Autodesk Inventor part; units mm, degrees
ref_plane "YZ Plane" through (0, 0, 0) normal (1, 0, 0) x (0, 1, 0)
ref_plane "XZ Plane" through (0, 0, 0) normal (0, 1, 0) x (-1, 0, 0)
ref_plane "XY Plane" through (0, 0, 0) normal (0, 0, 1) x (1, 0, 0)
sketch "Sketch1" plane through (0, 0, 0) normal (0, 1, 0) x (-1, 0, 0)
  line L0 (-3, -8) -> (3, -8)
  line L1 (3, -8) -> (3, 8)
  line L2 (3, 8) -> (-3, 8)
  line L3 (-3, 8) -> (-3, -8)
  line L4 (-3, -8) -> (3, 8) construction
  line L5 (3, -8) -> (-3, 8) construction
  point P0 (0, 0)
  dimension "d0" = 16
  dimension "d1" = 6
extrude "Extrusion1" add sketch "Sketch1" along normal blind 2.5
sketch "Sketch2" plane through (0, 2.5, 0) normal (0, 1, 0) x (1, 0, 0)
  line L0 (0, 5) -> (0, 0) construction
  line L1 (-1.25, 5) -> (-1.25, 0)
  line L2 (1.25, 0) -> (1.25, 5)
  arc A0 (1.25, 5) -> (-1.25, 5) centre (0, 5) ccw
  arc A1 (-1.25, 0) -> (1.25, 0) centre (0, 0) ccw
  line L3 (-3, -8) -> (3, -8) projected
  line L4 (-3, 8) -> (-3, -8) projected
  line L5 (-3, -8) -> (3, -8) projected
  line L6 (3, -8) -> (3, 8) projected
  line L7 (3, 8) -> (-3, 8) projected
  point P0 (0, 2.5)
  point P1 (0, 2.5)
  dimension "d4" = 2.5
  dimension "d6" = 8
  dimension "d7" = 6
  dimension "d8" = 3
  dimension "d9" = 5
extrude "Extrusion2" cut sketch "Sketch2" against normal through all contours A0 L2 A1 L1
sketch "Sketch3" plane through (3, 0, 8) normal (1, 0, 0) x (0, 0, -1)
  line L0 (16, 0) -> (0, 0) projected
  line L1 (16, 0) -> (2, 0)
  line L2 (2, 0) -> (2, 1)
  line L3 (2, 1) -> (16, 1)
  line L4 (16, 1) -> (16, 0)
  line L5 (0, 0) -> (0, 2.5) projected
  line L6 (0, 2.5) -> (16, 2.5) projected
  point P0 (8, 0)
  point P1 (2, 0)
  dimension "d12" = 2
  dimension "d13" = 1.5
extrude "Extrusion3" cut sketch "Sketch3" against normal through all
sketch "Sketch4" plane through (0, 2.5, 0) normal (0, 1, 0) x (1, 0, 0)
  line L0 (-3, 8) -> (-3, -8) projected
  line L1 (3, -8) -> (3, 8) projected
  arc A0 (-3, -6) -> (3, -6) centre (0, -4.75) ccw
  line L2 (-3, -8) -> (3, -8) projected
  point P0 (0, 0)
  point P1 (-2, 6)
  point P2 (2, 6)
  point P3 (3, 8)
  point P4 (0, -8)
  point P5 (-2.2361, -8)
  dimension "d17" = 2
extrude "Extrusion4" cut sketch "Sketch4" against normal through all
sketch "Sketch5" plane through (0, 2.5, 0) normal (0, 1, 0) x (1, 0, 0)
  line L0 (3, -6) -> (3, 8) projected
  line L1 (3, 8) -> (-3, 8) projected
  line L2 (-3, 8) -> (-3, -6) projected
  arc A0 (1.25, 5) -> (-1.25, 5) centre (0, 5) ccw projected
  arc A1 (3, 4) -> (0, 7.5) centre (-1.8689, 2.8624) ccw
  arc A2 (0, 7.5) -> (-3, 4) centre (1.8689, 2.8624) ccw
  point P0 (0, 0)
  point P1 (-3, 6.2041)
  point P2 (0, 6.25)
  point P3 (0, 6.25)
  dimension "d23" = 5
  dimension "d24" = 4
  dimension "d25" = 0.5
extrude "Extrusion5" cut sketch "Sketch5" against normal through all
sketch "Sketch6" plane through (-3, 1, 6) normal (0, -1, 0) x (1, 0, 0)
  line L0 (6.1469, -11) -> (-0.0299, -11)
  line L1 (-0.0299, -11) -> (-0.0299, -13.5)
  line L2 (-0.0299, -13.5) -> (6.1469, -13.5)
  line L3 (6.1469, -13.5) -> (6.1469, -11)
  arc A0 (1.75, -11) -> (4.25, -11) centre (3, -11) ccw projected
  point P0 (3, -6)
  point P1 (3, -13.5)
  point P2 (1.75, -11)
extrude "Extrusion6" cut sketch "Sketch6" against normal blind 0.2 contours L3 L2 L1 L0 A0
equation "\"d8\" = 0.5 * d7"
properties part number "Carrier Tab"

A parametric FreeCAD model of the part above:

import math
import FreeCAD as App
import Part
import Sketcher


def add_polygon(sketch, points):
    """Adds a closed chain of lines whose ends are joined by coincident constraints."""
    first, n = sketch.GeometryCount, len(points)
    for a, b in zip(points, points[1:] + points[:1]):
        sketch.addGeometry(Part.LineSegment(App.Vector(*a, 0), App.Vector(*b, 0)), False)
    for i in range(n):
        sketch.addConstraint(Sketcher.Constraint("Coincident", first + i, 2, first + (i + 1) % n, 1))

doc = App.newDocument("Part")
body = doc.addObject("PartDesign::Body", "Body")

# Sketch on XZ plane
sketch1 = body.newObject("Sketcher::SketchObject", "Sketch")
sketch1.AttachmentSupport = (doc.getObject("XZ_Plane"), [""])
sketch1.MapMode = "FlatFace"
add_polygon(sketch1, [(3, 8), (3, -8), (-3, -8), (-3, 8)])  # lines 0-3
sketch1.addConstraint([
    Sketcher.Constraint("Vertical", 0),
    Sketcher.Constraint("Horizontal", 1),
    Sketcher.Constraint("Vertical", 2),
    Sketcher.Constraint("Horizontal", 3),
    Sketcher.Constraint("Symmetric", 0, 2, 2, 2, -1, 1),
    Sketcher.Constraint("DistanceX", 1, 2, 1, 1, 6.0),
    Sketcher.Constraint("DistanceY", 0, 2, 0, 1, 16.0),
])
pad1 = body.newObject("PartDesign::Pad", "Pad")
pad1.Profile = sketch1
pad1.Length = 2.5
pad1.Reversed = True

# Sketch on XZ plane
sketch2 = body.newObject("Sketcher::SketchObject", "Sketch001")
sketch2.AttachmentSupport = (doc.getObject("XZ_Plane"), [""])
sketch2.MapMode = "FlatFace"
sketch2.AttachmentOffset = App.Placement(App.Vector(0, 0, -2.5), App.Rotation())
sketch2.addGeometry([
    Part.ArcOfCircle(Part.Circle(App.Vector(0, -5, 0), App.Vector(0, 0, 1), 1.25), math.radians(180), math.radians(360)),
    Part.LineSegment(App.Vector(-1.25, -5, 0), App.Vector(-1.25, 0, 0)),
    Part.ArcOfCircle(Part.Circle(App.Vector(0, 0, 0), App.Vector(0, 0, 1), 1.25), math.radians(0), math.radians(180)),
    Part.LineSegment(App.Vector(1.25, 0, 0), App.Vector(1.25, -5, 0)),
], False)
sketch2.addConstraint([
    Sketcher.Constraint("Tangent", 0, 1, 1, 1),
    Sketcher.Constraint("Tangent", 1, 2, 2, 2),
    Sketcher.Constraint("Tangent", 2, 1, 3, 1),
    Sketcher.Constraint("Tangent", 3, 2, 0, 2),
    Sketcher.Constraint("Vertical", 1),
    Sketcher.Constraint("Vertical", 3),
    Sketcher.Constraint("Coincident", 2, 3, -1, 1),
    Sketcher.Constraint("DistanceY", 1, 1, 1, 2, 5.0),
    Sketcher.Constraint("Radius", 0, 1.25),
])
pocket1 = body.newObject("PartDesign::Pocket", "Pocket")
pocket1.Profile = sketch2
pocket1.Type = "ThroughAll"
pocket1.Reversed = True

# Sketch on YZ plane
sketch3 = body.newObject("Sketcher::SketchObject", "Sketch002")
sketch3.AttachmentSupport = (doc.getObject("YZ_Plane"), [""])
sketch3.MapMode = "FlatFace"
sketch3.AttachmentOffset = App.Placement(App.Vector(0, 0, 3), App.Rotation())
add_polygon(sketch3, [(0, 6), (0, -8), (1, -8), (1, 6)])  # lines 0-3
sketch3.addConstraint([
    Sketcher.Constraint("Vertical", 0),
    Sketcher.Constraint("Horizontal", 1),
    Sketcher.Constraint("Vertical", 2),
    Sketcher.Constraint("Horizontal", 3),
    Sketcher.Constraint("PointOnObject", 0, 2, -2),
    Sketcher.Constraint("DistanceX", 1, 1, 1, 2, 1.0),
    Sketcher.Constraint("DistanceY", 0, 2, 0, 1, 14.0),
    Sketcher.Constraint("DistanceY", 0, 2, -1, 1, 8.0),
])
pocket2 = body.newObject("PartDesign::Pocket", "Pocket001")
pocket2.Profile = sketch3
pocket2.Type = "ThroughAll"

# Sketch on XZ plane
sketch4 = body.newObject("Sketcher::SketchObject", "Sketch003")
sketch4.AttachmentSupport = (doc.getObject("XZ_Plane"), [""])
sketch4.MapMode = "FlatFace"
sketch4.AttachmentOffset = App.Placement(App.Vector(0, 0, -2.5), App.Rotation())
sketch4.addGeometry([
    Part.ArcOfCircle(Part.Circle(App.Vector(0, 4.75, 0), App.Vector(0, 0, 1), 3.25), math.radians(90), math.radians(157.380135)),  # 0
    Part.LineSegment(App.Vector(-3, 6, 0), App.Vector(-3, 8, 0)),  # 1
    Part.LineSegment(App.Vector(-3, 8, 0), App.Vector(0, 8, 0)),  # 2
    Part.ArcOfCircle(Part.Circle(App.Vector(0, 4.75, 0), App.Vector(0, 0, 1), 3.25), math.radians(22.619865), math.radians(90)),  # 3
    Part.LineSegment(App.Vector(0, 8, 0), App.Vector(3, 8, 0)),  # 4
    Part.LineSegment(App.Vector(3, 8, 0), App.Vector(3, 6, 0)),  # 5
], False)
sketch4.addConstraint([
    Sketcher.Constraint("Coincident", 0, 2, 1, 1),
    Sketcher.Constraint("Coincident", 1, 2, 2, 1),
    Sketcher.Constraint("Tangent", 2, 2, 0, 1),
    Sketcher.Constraint("Tangent", 3, 2, 4, 1),
    Sketcher.Constraint("Coincident", 4, 2, 5, 1),
    Sketcher.Constraint("Coincident", 5, 2, 3, 1),
    Sketcher.Constraint("Vertical", 1),
    Sketcher.Constraint("Horizontal", 2),
    Sketcher.Constraint("Horizontal", 4),
    Sketcher.Constraint("Vertical", 5),
    Sketcher.Constraint("Coincident", 3, 3, 0, 3),
    Sketcher.Constraint("Equal", 0, 3),
    Sketcher.Constraint("Symmetric", 0, 2, 5, 2, -2),
    Sketcher.Constraint("DistanceY", 1, 1, 1, 2, 2.0),
    Sketcher.Constraint("DistanceX", 2, 1, 2, 2, 3.0),
    Sketcher.Constraint("DistanceY", -1, 1, 0, 2, 6.0),
])
pocket3 = body.newObject("PartDesign::Pocket", "Pocket002")
pocket3.Profile = sketch4
pocket3.Type = "ThroughAll"
pocket3.Reversed = True

# Sketch on XZ plane
sketch5 = body.newObject("Sketcher::SketchObject", "Sketch004")
sketch5.AttachmentSupport = (doc.getObject("XZ_Plane"), [""])
sketch5.MapMode = "FlatFace"
sketch5.AttachmentOffset = App.Placement(App.Vector(0, 0, -2.5), App.Rotation())
sketch5.addGeometry([
    Part.ArcOfCircle(Part.Circle(App.Vector(-1.8689, -2.8624, 0), App.Vector(0, 0, 1), 5.000032), math.radians(-68.051126), math.radians(-13.151022)),  # 0
    Part.LineSegment(App.Vector(3, -4, 0), App.Vector(3, -8, 0)),  # 1
    Part.LineSegment(App.Vector(3, -8, 0), App.Vector(-3, -8, 0)),  # 2
    Part.LineSegment(App.Vector(-3, -8, 0), App.Vector(-3, -4, 0)),  # 3
    Part.ArcOfCircle(Part.Circle(App.Vector(1.8689, -2.8624, 0), App.Vector(0, 0, 1), 5.000012), math.radians(-166.848978), math.radians(-111.948874)),  # 4
], False)
sketch5.addConstraint([
    Sketcher.Constraint("Coincident", 0, 2, 1, 1),
    Sketcher.Constraint("Coincident", 1, 2, 2, 1),
    Sketcher.Constraint("Coincident", 2, 2, 3, 1),
    Sketcher.Constraint("Coincident", 3, 2, 4, 1),
    Sketcher.Constraint("Coincident", 4, 2, 0, 1),
    Sketcher.Constraint("Vertical", 1),
    Sketcher.Constraint("Horizontal", 2),
    Sketcher.Constraint("Vertical", 3),
    Sketcher.Constraint("Equal", 0, 4),
    Sketcher.Constraint("Symmetric", 0, 3, 4, 3, -2),
    Sketcher.Constraint("Horizontal", 0, 2, 3, 2),
    Sketcher.Constraint("Radius", 0, 5.0),
    Sketcher.Constraint("DistanceY", 1, 2, 1, 1, 4.0),
    Sketcher.Constraint("DistanceY", 0, 2, -1, 1, 4.0),
    Sketcher.Constraint("DistanceY", 2, 2, 4, 2, 0.5),
    Sketcher.Constraint("DistanceX", 2, 2, 2, 1, 6.0),
])
pocket4 = body.newObject("PartDesign::Pocket", "Pocket003")
pocket4.Profile = sketch5
pocket4.Type = "ThroughAll"
pocket4.Reversed = True

# Sketch on XZ plane
sketch6 = body.newObject("Sketcher::SketchObject", "Sketch005")
sketch6.AttachmentSupport = (doc.getObject("XZ_Plane"), [""])
sketch6.MapMode = "FlatFace"
sketch6.AttachmentOffset = App.Placement(App.Vector(0, 0, -1), App.Rotation())
sketch6.addGeometry([
    Part.LineSegment(App.Vector(3.1469, -7.5, 0), App.Vector(3.1469, -5, 0)),  # 0
    Part.LineSegment(App.Vector(3.1469, -5, 0), App.Vector(1.25, -5, 0)),  # 1
    Part.ArcOfCircle(Part.Circle(App.Vector(0, -5, 0), App.Vector(0, 0, 1), 1.25), math.radians(180), math.radians(360)),  # 2
    Part.LineSegment(App.Vector(-1.25, -5, 0), App.Vector(-3.0299, -5, 0)),  # 3
    Part.LineSegment(App.Vector(-3.0299, -5, 0), App.Vector(-3.0299, -7.5, 0)),  # 4
    Part.LineSegment(App.Vector(-3.0299, -7.5, 0), App.Vector(3.1469, -7.5, 0)),  # 5
], False)
sketch6.addConstraint([
    Sketcher.Constraint("Coincident", 0, 2, 1, 1),
    Sketcher.Constraint("Coincident", 1, 2, 2, 2),
    Sketcher.Constraint("Coincident", 2, 1, 3, 1),
    Sketcher.Constraint("Coincident", 3, 2, 4, 1),
    Sketcher.Constraint("Coincident", 4, 2, 5, 1),
    Sketcher.Constraint("Coincident", 5, 2, 0, 1),
    Sketcher.Constraint("Vertical", 0),
    Sketcher.Constraint("Horizontal", 1),
    Sketcher.Constraint("Horizontal", 3),
    Sketcher.Constraint("Vertical", 4),
    Sketcher.Constraint("Horizontal", 5),
    Sketcher.Constraint("Symmetric", 1, 2, 2, 1, -2),
    Sketcher.Constraint("Horizontal", 2, 3, 0, 2),
    Sketcher.Constraint("Radius", 2, 1.25),
    Sketcher.Constraint("DistanceY", 0, 1, 0, 2, 2.5),
    Sketcher.Constraint("DistanceY", 2, 3, -1, 1, 5.0),
    Sketcher.Constraint("DistanceX", 3, 2, 3, 1, 1.78),
    Sketcher.Constraint("DistanceX", 1, 2, 1, 1, 1.897),
])
pocket5 = body.newObject("PartDesign::Pocket", "Pocket004")
pocket5.Profile = sketch6
pocket5.Length = 0.2

doc.recompute()
